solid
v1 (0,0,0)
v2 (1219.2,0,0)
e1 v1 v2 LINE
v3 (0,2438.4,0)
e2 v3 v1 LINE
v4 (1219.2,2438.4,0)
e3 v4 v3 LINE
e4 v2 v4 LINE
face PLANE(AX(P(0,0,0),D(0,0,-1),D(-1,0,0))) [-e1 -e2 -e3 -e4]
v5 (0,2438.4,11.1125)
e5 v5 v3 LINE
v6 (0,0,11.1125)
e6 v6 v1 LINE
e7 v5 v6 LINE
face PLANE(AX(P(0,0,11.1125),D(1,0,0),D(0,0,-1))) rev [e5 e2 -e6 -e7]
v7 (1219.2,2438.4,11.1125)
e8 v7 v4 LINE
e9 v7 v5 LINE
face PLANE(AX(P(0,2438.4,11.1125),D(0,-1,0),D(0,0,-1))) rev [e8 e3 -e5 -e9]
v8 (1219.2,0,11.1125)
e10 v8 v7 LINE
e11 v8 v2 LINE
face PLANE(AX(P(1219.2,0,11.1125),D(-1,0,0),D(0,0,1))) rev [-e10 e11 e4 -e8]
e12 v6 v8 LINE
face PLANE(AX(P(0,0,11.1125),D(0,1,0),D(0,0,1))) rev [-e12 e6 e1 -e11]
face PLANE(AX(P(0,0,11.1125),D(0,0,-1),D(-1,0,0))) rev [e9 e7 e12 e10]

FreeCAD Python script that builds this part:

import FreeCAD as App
import Part
import Sketcher
from FreeCAD import Vector
Q = App.Units.Quantity


def add_polygon(sketch, points):
    """Adds a closed chain of lines whose ends are joined by coincident constraints."""
    first, n = sketch.GeometryCount, len(points)
    for a, b in zip(points, points[1:] + points[:1]):
        sketch.addGeometry(Part.LineSegment(App.Vector(*a, 0), App.Vector(*b, 0)), False)
    for i in range(n):
        sketch.addConstraint(Sketcher.Constraint("Coincident", first + i, 2, first + (i + 1) % n, 1))

doc = App.newDocument("Part")
body = doc.addObject("PartDesign::Body", "Body")

sketch1 = doc.addObject("Sketcher::SketchObject", "Sketch")
body.addObject(sketch1)
sketch1.AttachmentSupport = (doc.XY_Plane, [""])
sketch1.MapMode = "FlatFace"
add_polygon(sketch1, [(0, 2438), (0, 0), (1219, 0), (1219, 2438)])
sketch1.addConstraint([
    Sketcher.Constraint("Vertical", 0),
    Sketcher.Constraint("Horizontal", 1),
    Sketcher.Constraint("Vertical", 2),
    Sketcher.Constraint("Horizontal", 3),
    Sketcher.Constraint("Coincident", 0, 2, -1, 1),
    Sketcher.Constraint("DistanceX", 1, 1, 1, 2, Q("48 in")),
    Sketcher.Constraint("DistanceY", 0, 2, 0, 1, Q("96 in")),
])
pad1 = doc.addObject("PartDesign::Pad", "Pad")
body.addObject(pad1)
pad1.Profile = sketch1
pad1.Length = Q("0.4375 in")

doc.recompute()
